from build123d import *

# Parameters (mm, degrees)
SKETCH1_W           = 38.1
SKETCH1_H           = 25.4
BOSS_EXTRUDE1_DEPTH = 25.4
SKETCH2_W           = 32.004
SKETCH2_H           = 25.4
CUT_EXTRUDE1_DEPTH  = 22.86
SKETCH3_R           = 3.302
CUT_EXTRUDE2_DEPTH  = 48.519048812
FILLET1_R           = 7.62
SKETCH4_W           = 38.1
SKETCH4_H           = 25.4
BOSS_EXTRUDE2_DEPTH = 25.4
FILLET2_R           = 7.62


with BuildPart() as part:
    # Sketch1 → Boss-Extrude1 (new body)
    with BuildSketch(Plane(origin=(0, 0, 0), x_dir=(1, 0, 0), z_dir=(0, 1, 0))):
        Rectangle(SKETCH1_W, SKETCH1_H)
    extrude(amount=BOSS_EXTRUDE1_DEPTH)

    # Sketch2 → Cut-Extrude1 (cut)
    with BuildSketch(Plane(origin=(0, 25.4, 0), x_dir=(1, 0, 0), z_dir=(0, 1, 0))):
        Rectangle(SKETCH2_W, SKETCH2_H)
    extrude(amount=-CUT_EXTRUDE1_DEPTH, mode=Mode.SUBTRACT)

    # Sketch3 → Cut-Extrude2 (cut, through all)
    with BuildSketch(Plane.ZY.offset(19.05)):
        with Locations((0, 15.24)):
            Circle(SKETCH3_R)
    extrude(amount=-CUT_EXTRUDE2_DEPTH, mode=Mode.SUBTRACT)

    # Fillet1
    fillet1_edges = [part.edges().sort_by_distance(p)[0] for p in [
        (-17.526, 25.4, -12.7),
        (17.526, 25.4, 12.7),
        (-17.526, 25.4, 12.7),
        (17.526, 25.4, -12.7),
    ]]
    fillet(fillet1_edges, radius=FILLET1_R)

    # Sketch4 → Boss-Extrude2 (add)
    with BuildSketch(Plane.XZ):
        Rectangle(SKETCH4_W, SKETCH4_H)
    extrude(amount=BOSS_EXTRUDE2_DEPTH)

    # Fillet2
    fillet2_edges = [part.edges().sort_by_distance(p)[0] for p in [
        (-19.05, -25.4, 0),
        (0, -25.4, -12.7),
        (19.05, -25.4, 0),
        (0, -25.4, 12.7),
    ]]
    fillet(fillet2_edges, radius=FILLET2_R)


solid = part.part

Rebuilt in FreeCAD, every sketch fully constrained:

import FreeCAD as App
import Part
import Sketcher
from FreeCAD import Vector
Q = App.Units.Quantity


def edges_at(feature, points):
    """Names of the edges that pass closest to the given points."""
    edges = feature.Shape.Edges
    near = lambda p: min(range(len(edges)), key=lambda i: edges[i].distToShape(Part.Vertex(*p))[0])
    return sorted({f"Edge{near(p) + 1}" for p in points})


def add_polygon(sketch, points):
    """Adds a closed chain of lines whose ends are joined by coincident constraints."""
    first, n = sketch.GeometryCount, len(points)
    for a, b in zip(points, points[1:] + points[:1]):
        sketch.addGeometry(Part.LineSegment(App.Vector(*a, 0), App.Vector(*b, 0)), False)
    for i in range(n):
        sketch.addConstraint(Sketcher.Constraint("Coincident", first + i, 2, first + (i + 1) % n, 1))

doc = App.newDocument("Part")
body = doc.addObject("PartDesign::Body", "Body")

# Sketch on XZ plane
sketch1 = doc.addObject("Sketcher::SketchObject", "Sketch")
body.addObject(sketch1)
sketch1.AttachmentSupport = (doc.XZ_Plane, [""])
sketch1.MapMode = "FlatFace"
add_polygon(sketch1, [(-19, -13), (-19, 13), (19, 13), (19, -13)])  # lines 0-3
sketch1.addConstraint([
    Sketcher.Constraint("Vertical", 0),
    Sketcher.Constraint("Horizontal", 1),
    Sketcher.Constraint("Vertical", 2),
    Sketcher.Constraint("Horizontal", 3),
    Sketcher.Constraint("Symmetric", 0, 2, 2, 2, -1, 1),
    Sketcher.Constraint("DistanceY", 0, 1, 0, 2, Q("1 in")),
    Sketcher.Constraint("DistanceX", 1, 1, 1, 2, Q("1.5 in")),
])
pad1 = doc.addObject("PartDesign::Pad", "Pad")
body.addObject(pad1)
pad1.Profile = sketch1
pad1.Length = Q("1 in")
pad1.Reversed = True

# Sketch on XZ plane
sketch2 = doc.addObject("Sketcher::SketchObject", "Sketch001")
body.addObject(sketch2)
sketch2.AttachmentSupport = (doc.XZ_Plane, [""])
sketch2.MapMode = "FlatFace"
sketch2.AttachmentOffset = App.Placement(Vector(0, 0, -1 * 25.4), App.Rotation())
add_polygon(sketch2, [(-16, -13), (-16, 13), (16, 13), (16, -13)])  # lines 0-3
sketch2.addConstraint([
    Sketcher.Constraint("Vertical", 0),
    Sketcher.Constraint("Horizontal", 1),
    Sketcher.Constraint("Vertical", 2),
    Sketcher.Constraint("Horizontal", 3),
    Sketcher.Constraint("Symmetric", 0, 2, 2, 2, -1, 1),
    Sketcher.Constraint("DistanceY", 0, 1, 0, 2, Q("1 in")),
    Sketcher.Constraint("DistanceX", 1, 1, 1, 2, Q("1.26 in")),
])
pocket1 = doc.addObject("PartDesign::Pocket", "Pocket")
body.addObject(pocket1)
pocket1.Profile = sketch2
pocket1.Length = Q("0.9 in")
pocket1.Reversed = True

# Sketch on YZ plane
sketch3 = doc.addObject("Sketcher::SketchObject", "Sketch002")
body.addObject(sketch3)
sketch3.AttachmentSupport = (doc.YZ_Plane, [""])
sketch3.MapMode = "FlatFace"
sketch3.AttachmentOffset = App.Placement(Vector(0, 0, -0.75 * 25.4), App.Rotation())
sketch3.addGeometry(Part.Circle(Vector(15.2, 0, 0), Vector(0, 0, 1), 3.3), False)
sketch3.addConstraint([
    Sketcher.Constraint("PointOnObject", 0, 3, -1),
    Sketcher.Constraint("Diameter", 0, Q("0.26 in")),
    Sketcher.Constraint("DistanceX", -1, 1, 0, 3, Q("0.6 in")),
])
pocket2 = doc.addObject("PartDesign::Pocket", "Pocket001")
body.addObject(pocket2)
pocket2.Profile = sketch3
pocket2.Type = "ThroughAll"
pocket2.Reversed = True
doc.recompute()

fillet = doc.addObject("PartDesign::Fillet", "Fillet")
body.addObject(fillet)
fillet.Base = (pocket2, edges_at(pocket2, [
    (-17.526, 25.4, -12.7),
    (17.526, 25.4, 12.7),
    (-17.526, 25.4, 12.7),
    (17.526, 25.4, -12.7),
]))
fillet.Radius = Q("0.3 in")

# Sketch on XZ plane
sketch4 = doc.addObject("Sketcher::SketchObject", "Sketch003")
body.addObject(sketch4)
sketch4.AttachmentSupport = (doc.XZ_Plane, [""])
sketch4.MapMode = "FlatFace"
add_polygon(sketch4, [(-19, 13), (-19, -13), (19, -13), (19, 13)])  # lines 0-3
sketch4.addConstraint([
    Sketcher.Constraint("Vertical", 0),
    Sketcher.Constraint("Horizontal", 1),
    Sketcher.Constraint("Vertical", 2),
    Sketcher.Constraint("Horizontal", 3),
    Sketcher.Constraint("Symmetric", 0, 2, 2, 2, -1, 1),
    Sketcher.Constraint("DistanceY", 0, 2, 0, 1, Q("1 in")),
    Sketcher.Constraint("DistanceX", 1, 1, 1, 2, Q("1.5 in")),
])
pad2 = doc.addObject("PartDesign::Pad", "Pad001")
body.addObject(pad2)
pad2.Profile = sketch4
pad2.Length = Q("1 in")
doc.recompute()

fillet2 = doc.addObject("PartDesign::Fillet", "Fillet001")
body.addObject(fillet2)
fillet2.Base = (pad2, edges_at(pad2, [
    (-19.05, -25.4, 0),
    (0, -25.4, -12.7),
    (19.05, -25.4, 0),
    (0, -25.4, 12.7),
]))
fillet2.Radius = Q("0.3 in")

doc.recompute()
